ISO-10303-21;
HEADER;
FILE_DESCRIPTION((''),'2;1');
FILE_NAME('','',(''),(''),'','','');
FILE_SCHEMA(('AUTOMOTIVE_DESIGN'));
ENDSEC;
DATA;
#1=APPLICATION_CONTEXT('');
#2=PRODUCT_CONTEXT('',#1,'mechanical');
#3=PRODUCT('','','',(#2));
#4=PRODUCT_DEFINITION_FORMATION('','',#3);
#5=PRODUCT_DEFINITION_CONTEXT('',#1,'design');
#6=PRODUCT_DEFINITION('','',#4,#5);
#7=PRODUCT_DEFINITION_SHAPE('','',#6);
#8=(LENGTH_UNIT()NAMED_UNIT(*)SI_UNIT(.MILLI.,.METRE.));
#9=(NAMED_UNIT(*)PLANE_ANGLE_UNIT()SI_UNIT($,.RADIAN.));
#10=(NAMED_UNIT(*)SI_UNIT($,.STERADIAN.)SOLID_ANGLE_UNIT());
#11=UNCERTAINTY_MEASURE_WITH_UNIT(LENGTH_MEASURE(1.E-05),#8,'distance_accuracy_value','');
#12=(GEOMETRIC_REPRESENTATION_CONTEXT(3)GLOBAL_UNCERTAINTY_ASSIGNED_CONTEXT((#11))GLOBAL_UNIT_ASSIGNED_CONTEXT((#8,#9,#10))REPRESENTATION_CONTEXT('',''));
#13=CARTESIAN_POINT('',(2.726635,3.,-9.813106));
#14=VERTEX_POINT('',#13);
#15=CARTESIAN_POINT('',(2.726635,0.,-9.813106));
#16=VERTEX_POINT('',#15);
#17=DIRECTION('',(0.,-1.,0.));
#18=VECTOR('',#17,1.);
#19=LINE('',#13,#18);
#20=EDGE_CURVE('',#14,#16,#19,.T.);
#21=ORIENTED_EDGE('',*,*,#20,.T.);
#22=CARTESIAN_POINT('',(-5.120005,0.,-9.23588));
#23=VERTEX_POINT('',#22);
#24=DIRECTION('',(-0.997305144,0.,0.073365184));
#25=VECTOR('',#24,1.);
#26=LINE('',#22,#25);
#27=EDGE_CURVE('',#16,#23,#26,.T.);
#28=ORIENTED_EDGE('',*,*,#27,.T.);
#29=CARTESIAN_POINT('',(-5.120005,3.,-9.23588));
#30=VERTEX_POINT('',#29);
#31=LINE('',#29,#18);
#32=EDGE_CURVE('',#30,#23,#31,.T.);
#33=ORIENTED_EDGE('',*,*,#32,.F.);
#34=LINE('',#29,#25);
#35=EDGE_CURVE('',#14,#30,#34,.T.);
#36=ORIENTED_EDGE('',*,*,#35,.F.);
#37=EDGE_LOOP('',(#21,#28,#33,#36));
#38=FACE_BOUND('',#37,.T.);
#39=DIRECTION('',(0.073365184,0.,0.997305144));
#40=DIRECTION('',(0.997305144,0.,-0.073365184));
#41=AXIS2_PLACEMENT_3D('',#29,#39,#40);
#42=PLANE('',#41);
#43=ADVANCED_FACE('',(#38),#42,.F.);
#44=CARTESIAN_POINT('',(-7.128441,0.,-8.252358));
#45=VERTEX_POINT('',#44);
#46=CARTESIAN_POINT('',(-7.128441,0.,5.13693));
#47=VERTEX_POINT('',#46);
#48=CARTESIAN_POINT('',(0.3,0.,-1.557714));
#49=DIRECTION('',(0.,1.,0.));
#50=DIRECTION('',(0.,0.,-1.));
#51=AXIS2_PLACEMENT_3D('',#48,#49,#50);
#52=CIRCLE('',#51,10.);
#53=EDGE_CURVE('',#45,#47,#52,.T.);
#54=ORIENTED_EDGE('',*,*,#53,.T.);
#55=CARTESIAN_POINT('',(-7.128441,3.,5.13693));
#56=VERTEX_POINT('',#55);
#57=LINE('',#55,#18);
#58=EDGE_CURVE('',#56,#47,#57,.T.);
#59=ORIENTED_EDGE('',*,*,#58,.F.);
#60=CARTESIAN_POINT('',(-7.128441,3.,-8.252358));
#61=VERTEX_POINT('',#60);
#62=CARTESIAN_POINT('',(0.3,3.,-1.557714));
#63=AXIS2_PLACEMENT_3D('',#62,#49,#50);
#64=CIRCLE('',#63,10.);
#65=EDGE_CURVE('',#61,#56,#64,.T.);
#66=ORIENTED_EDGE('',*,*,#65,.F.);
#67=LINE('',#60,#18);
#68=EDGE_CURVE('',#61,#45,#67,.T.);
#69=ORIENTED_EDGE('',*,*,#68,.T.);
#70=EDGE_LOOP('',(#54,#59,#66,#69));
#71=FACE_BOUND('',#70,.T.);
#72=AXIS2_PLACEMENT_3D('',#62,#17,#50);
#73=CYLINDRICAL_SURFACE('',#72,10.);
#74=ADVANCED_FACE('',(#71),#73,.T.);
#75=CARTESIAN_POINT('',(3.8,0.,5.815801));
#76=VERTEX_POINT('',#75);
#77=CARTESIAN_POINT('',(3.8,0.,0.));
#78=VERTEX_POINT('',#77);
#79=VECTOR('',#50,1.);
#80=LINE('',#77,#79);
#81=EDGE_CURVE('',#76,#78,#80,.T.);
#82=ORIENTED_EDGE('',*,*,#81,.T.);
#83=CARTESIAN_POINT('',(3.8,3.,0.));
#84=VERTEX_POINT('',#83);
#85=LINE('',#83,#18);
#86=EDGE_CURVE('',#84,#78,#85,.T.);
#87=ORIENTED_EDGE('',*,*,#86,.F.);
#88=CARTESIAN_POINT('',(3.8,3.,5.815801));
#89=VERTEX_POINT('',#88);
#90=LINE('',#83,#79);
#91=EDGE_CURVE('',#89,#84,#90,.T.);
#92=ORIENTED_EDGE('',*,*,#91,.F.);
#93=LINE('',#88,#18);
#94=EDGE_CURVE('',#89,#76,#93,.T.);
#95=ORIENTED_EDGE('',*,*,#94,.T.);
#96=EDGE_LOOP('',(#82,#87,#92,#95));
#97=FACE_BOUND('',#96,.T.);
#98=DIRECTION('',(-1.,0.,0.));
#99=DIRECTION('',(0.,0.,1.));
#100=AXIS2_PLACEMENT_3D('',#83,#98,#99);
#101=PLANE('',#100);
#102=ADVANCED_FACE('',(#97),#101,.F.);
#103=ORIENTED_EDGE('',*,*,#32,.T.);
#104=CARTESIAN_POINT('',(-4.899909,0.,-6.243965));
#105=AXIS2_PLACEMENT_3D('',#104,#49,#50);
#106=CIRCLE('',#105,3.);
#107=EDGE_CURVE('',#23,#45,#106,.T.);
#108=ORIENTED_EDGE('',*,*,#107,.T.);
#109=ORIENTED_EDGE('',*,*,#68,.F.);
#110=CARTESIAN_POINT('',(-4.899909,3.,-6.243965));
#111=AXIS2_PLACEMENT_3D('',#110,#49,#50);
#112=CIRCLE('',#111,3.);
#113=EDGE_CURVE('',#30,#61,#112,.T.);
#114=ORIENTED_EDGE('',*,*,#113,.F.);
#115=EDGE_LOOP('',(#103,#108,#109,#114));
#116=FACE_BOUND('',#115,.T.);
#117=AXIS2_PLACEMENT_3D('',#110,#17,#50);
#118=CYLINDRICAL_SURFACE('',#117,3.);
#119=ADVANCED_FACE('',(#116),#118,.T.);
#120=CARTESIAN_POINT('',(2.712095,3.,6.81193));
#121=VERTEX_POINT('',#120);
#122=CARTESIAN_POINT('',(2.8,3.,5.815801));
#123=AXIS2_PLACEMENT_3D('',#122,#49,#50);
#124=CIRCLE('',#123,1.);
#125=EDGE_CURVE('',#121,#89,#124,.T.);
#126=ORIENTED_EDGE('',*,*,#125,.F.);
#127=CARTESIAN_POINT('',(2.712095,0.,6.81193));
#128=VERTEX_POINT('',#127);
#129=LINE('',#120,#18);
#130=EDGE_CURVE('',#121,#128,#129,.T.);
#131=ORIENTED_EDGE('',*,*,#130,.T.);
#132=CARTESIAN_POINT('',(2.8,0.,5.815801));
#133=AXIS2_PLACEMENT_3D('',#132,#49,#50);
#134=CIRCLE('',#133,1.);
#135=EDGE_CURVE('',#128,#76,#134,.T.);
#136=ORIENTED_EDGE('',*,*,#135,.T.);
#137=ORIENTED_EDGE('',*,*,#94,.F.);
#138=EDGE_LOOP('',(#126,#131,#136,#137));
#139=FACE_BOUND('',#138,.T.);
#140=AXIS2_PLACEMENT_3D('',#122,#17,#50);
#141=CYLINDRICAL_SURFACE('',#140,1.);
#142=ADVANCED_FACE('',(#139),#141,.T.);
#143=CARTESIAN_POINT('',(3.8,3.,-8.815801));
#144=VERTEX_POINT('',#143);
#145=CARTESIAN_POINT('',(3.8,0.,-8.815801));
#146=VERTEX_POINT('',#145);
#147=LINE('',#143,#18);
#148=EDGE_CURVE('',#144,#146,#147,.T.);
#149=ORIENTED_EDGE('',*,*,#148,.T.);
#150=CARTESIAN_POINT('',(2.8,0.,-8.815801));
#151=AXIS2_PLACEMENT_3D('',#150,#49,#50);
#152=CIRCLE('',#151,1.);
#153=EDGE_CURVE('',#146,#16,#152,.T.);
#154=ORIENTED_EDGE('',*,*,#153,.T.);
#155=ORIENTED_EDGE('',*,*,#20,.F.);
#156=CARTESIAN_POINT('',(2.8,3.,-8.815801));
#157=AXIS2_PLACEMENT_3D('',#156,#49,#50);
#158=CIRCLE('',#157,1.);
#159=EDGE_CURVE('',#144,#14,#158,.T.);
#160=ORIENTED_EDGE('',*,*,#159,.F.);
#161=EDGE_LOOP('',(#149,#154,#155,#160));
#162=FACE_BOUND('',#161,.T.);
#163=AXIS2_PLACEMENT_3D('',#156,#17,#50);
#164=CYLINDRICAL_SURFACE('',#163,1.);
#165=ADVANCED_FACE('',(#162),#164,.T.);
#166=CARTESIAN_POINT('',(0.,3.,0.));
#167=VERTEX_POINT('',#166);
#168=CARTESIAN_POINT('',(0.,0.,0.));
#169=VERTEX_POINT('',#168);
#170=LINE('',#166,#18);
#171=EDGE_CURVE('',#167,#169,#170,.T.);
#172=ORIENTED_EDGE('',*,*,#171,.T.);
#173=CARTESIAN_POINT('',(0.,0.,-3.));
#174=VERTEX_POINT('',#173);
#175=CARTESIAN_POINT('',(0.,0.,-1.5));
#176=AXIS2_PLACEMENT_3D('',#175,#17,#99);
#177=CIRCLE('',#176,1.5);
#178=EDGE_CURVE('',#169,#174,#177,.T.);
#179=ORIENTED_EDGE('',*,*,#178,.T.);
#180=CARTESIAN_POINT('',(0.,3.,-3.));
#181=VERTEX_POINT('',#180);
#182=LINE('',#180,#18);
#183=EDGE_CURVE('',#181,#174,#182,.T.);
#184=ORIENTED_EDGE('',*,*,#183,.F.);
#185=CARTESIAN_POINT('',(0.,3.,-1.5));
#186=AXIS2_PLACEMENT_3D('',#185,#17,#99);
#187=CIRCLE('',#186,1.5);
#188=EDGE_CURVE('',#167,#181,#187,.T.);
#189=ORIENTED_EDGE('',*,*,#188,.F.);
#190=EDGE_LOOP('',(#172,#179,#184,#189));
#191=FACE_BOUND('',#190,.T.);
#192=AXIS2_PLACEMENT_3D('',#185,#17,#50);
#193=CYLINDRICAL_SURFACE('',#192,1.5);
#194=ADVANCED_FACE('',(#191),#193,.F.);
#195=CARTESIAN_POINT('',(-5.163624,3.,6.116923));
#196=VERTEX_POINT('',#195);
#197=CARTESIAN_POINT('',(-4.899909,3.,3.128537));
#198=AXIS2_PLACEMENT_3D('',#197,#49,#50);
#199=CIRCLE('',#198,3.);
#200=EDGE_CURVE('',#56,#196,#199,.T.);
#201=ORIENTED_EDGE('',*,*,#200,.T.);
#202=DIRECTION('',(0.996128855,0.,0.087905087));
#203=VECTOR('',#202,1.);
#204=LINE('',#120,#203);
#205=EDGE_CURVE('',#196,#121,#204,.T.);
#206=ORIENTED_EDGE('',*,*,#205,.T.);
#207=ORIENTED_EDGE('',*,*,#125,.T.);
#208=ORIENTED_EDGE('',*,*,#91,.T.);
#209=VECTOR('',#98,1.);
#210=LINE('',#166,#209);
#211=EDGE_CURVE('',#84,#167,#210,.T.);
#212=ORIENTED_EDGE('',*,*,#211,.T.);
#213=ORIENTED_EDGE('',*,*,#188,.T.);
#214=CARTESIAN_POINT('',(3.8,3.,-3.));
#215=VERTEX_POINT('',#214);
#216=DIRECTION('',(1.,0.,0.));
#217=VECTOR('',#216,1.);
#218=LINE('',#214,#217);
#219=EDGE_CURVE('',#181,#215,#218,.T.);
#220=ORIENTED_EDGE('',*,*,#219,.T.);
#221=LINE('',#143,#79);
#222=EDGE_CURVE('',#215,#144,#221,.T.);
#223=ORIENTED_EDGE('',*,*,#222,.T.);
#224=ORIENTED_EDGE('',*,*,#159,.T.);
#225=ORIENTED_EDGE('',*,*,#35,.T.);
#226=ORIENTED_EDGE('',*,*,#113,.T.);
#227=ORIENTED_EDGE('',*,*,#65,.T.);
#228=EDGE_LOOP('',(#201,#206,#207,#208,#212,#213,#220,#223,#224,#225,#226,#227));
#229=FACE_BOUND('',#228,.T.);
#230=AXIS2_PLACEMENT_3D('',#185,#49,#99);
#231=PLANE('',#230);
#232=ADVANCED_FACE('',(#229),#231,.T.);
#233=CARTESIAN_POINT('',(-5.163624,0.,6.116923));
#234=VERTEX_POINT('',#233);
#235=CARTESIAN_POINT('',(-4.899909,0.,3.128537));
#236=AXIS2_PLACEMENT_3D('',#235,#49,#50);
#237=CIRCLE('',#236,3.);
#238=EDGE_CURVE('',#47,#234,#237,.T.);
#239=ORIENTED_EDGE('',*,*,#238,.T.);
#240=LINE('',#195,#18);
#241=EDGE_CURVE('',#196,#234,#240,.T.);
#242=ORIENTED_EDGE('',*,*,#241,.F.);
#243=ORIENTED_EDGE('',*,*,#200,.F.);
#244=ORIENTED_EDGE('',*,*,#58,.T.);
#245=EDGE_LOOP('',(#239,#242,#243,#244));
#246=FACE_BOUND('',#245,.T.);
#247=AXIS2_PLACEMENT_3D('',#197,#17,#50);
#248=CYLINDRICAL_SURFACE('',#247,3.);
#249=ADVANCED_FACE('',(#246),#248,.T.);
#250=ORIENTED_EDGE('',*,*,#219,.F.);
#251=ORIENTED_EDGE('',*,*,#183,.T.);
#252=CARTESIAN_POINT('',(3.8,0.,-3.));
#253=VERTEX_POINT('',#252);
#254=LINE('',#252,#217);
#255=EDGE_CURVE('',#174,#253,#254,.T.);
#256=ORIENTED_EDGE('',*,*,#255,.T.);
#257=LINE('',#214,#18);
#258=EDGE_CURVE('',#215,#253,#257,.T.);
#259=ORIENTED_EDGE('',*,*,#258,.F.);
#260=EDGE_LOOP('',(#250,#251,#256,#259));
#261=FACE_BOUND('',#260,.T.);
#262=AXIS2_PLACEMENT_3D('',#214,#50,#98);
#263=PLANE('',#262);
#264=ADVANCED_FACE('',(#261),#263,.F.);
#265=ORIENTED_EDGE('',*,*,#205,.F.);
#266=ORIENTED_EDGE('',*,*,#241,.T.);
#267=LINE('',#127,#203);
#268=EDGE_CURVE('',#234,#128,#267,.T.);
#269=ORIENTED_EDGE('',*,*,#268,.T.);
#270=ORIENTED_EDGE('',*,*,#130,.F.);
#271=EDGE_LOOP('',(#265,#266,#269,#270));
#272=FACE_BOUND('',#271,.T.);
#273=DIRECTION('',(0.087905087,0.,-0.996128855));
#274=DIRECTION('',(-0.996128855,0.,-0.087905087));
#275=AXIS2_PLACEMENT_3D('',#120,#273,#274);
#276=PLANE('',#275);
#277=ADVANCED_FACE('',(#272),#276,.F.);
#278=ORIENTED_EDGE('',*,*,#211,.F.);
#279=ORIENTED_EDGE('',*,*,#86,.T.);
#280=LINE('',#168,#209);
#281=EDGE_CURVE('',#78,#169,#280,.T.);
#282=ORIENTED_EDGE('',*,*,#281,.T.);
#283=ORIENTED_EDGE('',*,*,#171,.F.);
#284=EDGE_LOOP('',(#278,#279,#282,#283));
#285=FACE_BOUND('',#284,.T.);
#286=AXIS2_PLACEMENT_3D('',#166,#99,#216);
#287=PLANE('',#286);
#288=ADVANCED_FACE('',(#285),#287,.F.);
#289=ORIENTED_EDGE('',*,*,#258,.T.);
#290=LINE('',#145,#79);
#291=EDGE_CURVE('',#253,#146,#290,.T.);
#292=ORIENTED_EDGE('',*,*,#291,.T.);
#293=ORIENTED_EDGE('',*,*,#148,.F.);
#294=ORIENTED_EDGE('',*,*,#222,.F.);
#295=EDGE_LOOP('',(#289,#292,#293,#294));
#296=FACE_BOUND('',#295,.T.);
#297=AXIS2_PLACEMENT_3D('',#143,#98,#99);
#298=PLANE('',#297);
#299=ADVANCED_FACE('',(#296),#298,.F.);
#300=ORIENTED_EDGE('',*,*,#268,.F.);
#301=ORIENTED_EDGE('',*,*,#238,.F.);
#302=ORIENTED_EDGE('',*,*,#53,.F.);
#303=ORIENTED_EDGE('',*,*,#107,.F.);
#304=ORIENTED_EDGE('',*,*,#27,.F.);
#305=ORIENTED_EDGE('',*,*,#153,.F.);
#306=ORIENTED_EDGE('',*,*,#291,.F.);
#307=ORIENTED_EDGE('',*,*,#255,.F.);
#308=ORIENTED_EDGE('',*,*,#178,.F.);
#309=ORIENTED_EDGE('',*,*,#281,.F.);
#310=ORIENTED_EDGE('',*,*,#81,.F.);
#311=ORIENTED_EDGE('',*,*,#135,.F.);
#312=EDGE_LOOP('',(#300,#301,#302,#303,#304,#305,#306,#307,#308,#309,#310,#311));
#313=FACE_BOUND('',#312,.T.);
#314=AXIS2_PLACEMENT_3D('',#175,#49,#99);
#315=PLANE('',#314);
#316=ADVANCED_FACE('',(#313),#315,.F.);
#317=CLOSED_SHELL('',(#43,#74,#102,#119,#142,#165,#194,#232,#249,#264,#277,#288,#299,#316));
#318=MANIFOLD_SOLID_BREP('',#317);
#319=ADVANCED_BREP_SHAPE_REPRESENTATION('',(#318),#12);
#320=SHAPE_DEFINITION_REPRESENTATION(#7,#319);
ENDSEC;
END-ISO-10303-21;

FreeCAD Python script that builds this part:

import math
import FreeCAD as App
import Part
import Sketcher
Q = App.Units.Quantity

doc = App.newDocument("Part")
body = doc.addObject("PartDesign::Body", "Body")

# Sketch on XZ plane
sketch1 = body.newObject("Sketcher::SketchObject", "Sketch")
sketch1.AttachmentSupport = (doc.getObject("XZ_Plane"), [""])
sketch1.MapMode = "FlatFace"
sketch1.addGeometry([
    Part.LineSegment(App.Vector(3.8, 0, 0), App.Vector(0, 0, 0)),  # 0
    Part.ArcOfCircle(Part.Circle(App.Vector(0, -1.5, 0), App.Vector(0, 0, 1), 1.5), math.radians(90), math.radians(270)),  # 1
    Part.LineSegment(App.Vector(0, -3, 0), App.Vector(3.8, -3, 0)),  # 2
    Part.LineSegment(App.Vector(3.8, -3, 0), App.Vector(3.8, -8.8, 0)),  # 3
    Part.ArcOfCircle(Part.Circle(App.Vector(2.8, -8.8, 0), App.Vector(0, 0, 1), 1), math.radians(-94), math.radians(0)),  # 4
    Part.LineSegment(App.Vector(2.7, -9.8, 0), App.Vector(-5.1, -9.2, 0)),  # 5
    Part.ArcOfCircle(Part.Circle(App.Vector(-4.9, -6.2, 0), App.Vector(0, 0, 1), 3), math.radians(-138), math.radians(-94)),  # 6
    Part.ArcOfCircle(Part.Circle(App.Vector(0.3, -1.6, 0), App.Vector(0, 0, 1), 10), math.radians(138), math.radians(222)),  # 7
    Part.ArcOfCircle(Part.Circle(App.Vector(-4.9, 3.1, 0), App.Vector(0, 0, 1), 3), math.radians(95), math.radians(138)),  # 8
    Part.LineSegment(App.Vector(-5.2, 6.1, 0), App.Vector(2.7, 6.8, 0)),  # 9
    Part.ArcOfCircle(Part.Circle(App.Vector(2.8, 5.8, 0), App.Vector(0, 0, 1), 1), math.radians(0), math.radians(95)),  # 10
    Part.LineSegment(App.Vector(3.8, 5.8, 0), App.Vector(3.8, 0, 0)),  # 11
], False)
sketch1.addConstraint([
    Sketcher.Constraint("Tangent", 0, 2, 1, 1),
    Sketcher.Constraint("Tangent", 1, 2, 2, 1),
    Sketcher.Constraint("Coincident", 2, 2, 3, 1),
    Sketcher.Constraint("Tangent", 3, 2, 4, 2),
    Sketcher.Constraint("Tangent", 4, 1, 5, 1),
    Sketcher.Constraint("Tangent", 5, 2, 6, 2),
    Sketcher.Constraint("Tangent", 6, 1, 7, 2),
    Sketcher.Constraint("Tangent", 7, 1, 8, 2),
    Sketcher.Constraint("Tangent", 8, 1, 9, 1),
    Sketcher.Constraint("Tangent", 9, 2, 10, 2),
    Sketcher.Constraint("Tangent", 10, 1, 11, 1),
    Sketcher.Constraint("Coincident", 11, 2, 0, 1),
    Sketcher.Constraint("Horizontal", 0),
    Sketcher.Constraint("Horizontal", 2),
    Sketcher.Constraint("Vertical", 3),
    Sketcher.Constraint("Vertical", 11),
    Sketcher.Constraint("Coincident", 0, 2, -1, 1),
    Sketcher.Constraint("Equal", 6, 8),
    Sketcher.Constraint("Equal", 4, 10),
    Sketcher.Constraint("Vertical", 6, 3, 8, 3),
    Sketcher.Constraint("Vertical", 4, 3, 10, 3),
    Sketcher.Constraint("Equal", 3, 11),
    Sketcher.Constraint("Radius", 4, Q("1 mm")),
    Sketcher.Constraint("Radius", 6, Q("3 mm")),
    Sketcher.Constraint("Radius", 7, Q("10 mm")),
    Sketcher.Constraint("Radius", 1, Q("1.5 mm")),
    Sketcher.Constraint("DistanceX", 0, 2, 0, 1, Q("3.8 mm")),
    Sketcher.Constraint("DistanceX", -1, 1, 7, 3, Q("0.3 mm")),
    Sketcher.Constraint("DistanceY", 3, 2, 3, 1, Q("5.815801 mm")),
    Sketcher.Constraint("DistanceY", 6, 3, 8, 3, Q("9.372502 mm")),
    Sketcher.Constraint("DistanceY", 5, 2, -1, 1, Q("9.23588 mm")),
])
pad1 = body.newObject("PartDesign::Pad", "Pad")
pad1.Profile = sketch1
pad1.Length = 3
pad1.Reversed = True

doc.recompute()
